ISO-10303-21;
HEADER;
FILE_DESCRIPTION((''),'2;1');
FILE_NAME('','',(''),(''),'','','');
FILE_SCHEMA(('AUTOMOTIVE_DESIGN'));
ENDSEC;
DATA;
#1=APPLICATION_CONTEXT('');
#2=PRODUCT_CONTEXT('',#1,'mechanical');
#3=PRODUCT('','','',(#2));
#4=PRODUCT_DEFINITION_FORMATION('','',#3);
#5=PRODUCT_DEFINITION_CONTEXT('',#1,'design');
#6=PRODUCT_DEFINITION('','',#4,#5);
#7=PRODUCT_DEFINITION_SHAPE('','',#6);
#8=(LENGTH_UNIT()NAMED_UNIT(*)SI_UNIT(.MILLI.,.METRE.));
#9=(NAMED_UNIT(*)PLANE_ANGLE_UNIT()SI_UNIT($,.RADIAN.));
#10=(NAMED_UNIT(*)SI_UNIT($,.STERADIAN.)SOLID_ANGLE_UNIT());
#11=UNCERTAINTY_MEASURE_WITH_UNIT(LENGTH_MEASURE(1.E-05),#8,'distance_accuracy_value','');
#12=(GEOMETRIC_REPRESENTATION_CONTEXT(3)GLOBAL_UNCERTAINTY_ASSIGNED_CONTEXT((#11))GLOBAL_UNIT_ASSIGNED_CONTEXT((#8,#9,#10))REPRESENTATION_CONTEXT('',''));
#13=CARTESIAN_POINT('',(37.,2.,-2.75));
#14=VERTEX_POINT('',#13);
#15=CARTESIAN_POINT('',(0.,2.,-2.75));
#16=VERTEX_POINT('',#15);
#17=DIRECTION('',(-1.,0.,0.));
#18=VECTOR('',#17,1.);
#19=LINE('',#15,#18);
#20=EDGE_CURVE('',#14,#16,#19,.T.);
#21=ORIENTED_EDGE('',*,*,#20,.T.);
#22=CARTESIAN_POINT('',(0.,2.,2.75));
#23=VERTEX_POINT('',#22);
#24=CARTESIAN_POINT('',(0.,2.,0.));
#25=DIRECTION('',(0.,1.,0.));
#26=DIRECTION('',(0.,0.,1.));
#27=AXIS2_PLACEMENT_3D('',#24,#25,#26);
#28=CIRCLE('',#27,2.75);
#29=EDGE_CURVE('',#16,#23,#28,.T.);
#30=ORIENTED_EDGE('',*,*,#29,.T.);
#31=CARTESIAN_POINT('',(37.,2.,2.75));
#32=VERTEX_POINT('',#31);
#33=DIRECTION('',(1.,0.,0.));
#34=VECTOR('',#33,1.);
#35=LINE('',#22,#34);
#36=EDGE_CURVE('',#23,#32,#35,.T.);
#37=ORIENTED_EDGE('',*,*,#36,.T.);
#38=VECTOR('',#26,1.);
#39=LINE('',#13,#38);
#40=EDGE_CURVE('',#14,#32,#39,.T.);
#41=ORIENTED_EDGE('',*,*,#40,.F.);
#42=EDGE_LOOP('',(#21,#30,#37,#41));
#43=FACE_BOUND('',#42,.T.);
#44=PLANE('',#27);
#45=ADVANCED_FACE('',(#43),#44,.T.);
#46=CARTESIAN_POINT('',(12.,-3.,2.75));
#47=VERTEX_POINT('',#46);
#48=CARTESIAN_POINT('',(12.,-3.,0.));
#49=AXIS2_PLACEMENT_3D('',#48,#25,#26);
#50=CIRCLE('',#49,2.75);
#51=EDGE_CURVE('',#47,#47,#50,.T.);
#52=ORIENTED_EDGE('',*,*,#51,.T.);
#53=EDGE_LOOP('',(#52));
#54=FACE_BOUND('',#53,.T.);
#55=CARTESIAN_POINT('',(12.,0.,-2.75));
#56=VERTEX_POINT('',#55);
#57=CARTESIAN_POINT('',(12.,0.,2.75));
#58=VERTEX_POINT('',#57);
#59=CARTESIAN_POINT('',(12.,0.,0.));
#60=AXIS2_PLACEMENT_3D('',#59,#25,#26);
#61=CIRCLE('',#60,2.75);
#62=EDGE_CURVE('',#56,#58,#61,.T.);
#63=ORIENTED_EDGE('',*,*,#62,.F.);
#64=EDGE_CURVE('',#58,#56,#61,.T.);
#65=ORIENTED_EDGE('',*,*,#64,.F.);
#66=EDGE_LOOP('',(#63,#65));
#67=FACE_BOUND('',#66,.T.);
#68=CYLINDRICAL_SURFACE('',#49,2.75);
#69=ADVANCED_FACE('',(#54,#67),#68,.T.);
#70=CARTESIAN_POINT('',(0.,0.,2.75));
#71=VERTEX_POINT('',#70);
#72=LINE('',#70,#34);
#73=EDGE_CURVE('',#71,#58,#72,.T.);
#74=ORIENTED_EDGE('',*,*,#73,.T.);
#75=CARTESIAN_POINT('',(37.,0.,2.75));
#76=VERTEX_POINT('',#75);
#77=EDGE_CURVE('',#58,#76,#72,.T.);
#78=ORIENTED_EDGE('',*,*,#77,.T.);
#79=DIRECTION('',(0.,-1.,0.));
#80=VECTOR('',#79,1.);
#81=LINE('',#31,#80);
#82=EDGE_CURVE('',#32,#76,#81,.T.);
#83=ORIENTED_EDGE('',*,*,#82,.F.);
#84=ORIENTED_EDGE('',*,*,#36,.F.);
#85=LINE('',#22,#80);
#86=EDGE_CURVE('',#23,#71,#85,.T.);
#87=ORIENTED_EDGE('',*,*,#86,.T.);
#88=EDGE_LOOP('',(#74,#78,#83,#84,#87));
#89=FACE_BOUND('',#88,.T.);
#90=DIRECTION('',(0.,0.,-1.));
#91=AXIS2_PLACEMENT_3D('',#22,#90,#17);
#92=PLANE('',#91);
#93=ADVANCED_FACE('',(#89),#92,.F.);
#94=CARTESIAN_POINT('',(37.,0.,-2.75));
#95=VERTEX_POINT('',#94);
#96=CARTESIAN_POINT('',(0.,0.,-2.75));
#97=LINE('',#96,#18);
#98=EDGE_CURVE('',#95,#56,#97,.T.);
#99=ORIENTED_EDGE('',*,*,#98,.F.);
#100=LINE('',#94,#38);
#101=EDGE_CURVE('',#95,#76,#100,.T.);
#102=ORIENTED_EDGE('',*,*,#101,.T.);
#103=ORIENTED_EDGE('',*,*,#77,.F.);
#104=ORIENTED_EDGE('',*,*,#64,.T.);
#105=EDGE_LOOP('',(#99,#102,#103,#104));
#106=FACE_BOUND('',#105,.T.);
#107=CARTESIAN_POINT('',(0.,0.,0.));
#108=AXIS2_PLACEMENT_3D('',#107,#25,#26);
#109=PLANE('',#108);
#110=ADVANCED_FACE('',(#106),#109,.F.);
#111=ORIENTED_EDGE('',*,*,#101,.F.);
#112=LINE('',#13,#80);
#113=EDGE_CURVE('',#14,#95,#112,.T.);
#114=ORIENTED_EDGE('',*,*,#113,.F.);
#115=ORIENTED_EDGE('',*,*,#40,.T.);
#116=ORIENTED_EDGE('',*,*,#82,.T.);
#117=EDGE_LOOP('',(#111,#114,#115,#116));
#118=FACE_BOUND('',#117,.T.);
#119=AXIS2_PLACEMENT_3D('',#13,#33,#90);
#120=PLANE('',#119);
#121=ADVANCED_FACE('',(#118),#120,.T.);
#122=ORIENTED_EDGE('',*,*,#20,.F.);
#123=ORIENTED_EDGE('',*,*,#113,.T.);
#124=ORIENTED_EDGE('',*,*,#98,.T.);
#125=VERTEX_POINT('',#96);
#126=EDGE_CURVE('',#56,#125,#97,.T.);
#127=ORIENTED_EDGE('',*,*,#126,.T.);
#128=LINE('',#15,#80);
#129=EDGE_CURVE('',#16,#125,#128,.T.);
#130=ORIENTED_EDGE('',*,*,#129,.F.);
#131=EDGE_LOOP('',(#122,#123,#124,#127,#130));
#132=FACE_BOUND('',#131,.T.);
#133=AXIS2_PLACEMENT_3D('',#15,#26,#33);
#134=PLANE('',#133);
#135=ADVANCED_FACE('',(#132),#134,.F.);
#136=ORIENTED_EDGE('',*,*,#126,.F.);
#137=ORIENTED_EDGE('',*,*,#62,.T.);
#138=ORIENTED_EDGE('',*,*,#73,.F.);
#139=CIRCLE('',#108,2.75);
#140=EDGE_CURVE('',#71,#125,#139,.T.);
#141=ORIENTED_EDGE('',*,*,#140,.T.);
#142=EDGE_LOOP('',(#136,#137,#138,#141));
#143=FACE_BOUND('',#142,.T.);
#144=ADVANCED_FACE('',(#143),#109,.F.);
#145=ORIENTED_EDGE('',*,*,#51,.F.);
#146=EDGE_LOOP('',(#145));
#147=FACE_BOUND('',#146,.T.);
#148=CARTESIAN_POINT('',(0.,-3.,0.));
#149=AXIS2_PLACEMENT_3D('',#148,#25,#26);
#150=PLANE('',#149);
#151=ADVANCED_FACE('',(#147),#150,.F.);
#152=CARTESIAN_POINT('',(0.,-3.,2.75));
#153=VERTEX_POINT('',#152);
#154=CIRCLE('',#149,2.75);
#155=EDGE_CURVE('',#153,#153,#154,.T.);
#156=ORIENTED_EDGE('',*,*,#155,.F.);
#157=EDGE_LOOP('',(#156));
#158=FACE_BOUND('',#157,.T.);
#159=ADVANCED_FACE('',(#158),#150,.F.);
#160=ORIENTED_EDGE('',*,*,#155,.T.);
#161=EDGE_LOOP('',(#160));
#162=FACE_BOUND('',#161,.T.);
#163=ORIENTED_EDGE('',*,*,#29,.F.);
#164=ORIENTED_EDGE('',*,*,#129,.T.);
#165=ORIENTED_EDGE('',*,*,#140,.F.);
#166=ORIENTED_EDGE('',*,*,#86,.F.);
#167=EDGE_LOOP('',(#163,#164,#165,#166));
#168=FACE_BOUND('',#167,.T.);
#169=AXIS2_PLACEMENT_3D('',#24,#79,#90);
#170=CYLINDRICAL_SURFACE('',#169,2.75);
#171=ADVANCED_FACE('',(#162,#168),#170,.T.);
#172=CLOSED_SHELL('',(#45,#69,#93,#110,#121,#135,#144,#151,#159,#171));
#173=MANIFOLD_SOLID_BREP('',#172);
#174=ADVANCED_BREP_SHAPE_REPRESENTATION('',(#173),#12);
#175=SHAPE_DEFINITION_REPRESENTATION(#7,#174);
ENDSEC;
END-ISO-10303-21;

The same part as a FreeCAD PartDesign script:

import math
import FreeCAD as App
import Part
import Sketcher
from FreeCAD import Vector
Q = App.Units.Quantity

doc = App.newDocument("Part")
params = doc.addObject("Spreadsheet::Sheet", "Params")
for row, (alias, value) in enumerate([
    ("sketch1_width", "37 mm"),
    ("sketch1_radius", "2.75 mm"),
    ("pad1_length", "2 mm"),
    ("sketch2_diameter", "5.5 mm"),
    ("pad2_length", "3 mm"),
], start=1):
    params.set(f"A{row}", alias)
    params.set(f"B{row}", "=" + value)
    params.setAlias(f"B{row}", alias)

body = doc.addObject("PartDesign::Body", "Body")

# Sketch on XZ plane
sketch1 = doc.addObject("Sketcher::SketchObject", "Sketch")
body.addObject(sketch1)
sketch1.AttachmentSupport = (doc.XZ_Plane, [""])
sketch1.MapMode = "FlatFace"
sketch1.addGeometry(Part.LineSegment(Vector(37, -2.8, 0), Vector(0, -2.8, 0)), False)
sketch1.addGeometry(Part.ArcOfCircle(Part.Circle(Vector(0, 0, 0), Vector(0, 0, 1), 2.8), math.radians(90), math.radians(270)), False)
sketch1.addGeometry(Part.LineSegment(Vector(0, 2.8, 0), Vector(37, 2.8, 0)), False)
sketch1.addGeometry(Part.LineSegment(Vector(37, 2.8, 0), Vector(37, -2.8, 0)), False)
sketch1.addConstraint(Sketcher.Constraint("Tangent", 0, 2, 1, 2))
sketch1.addConstraint(Sketcher.Constraint("Tangent", 1, 1, 2, 1))
sketch1.addConstraint(Sketcher.Constraint("Coincident", 2, 2, 3, 1))
sketch1.addConstraint(Sketcher.Constraint("Coincident", 3, 2, 0, 1))
sketch1.addConstraint(Sketcher.Constraint("Horizontal", 0))
sketch1.addConstraint(Sketcher.Constraint("Horizontal", 2))
sketch1.addConstraint(Sketcher.Constraint("Vertical", 3))
sketch1.addConstraint(Sketcher.Constraint("Coincident", 1, 3, -1, 1))
sketch1.addConstraint(Sketcher.Constraint("DistanceX", 0, 2, 0, 1, Q("37 mm")))
sketch1.addConstraint(Sketcher.Constraint("Radius", 1, Q("2.75 mm")))
sketch1.setExpression("Constraints[8]", "Params.sketch1_width")
sketch1.setExpression("Constraints[9]", "Params.sketch1_radius")
pad1 = doc.addObject("PartDesign::Pad", "Pad")
body.addObject(pad1)
pad1.Profile = sketch1
pad1.setExpression("Length", "Params.pad1_length")
pad1.Reversed = True

# Sketch on XZ plane
sketch2 = doc.addObject("Sketcher::SketchObject", "Sketch001")
body.addObject(sketch2)
sketch2.AttachmentSupport = (doc.XZ_Plane, [""])
sketch2.MapMode = "FlatFace"
sketch2.AttachmentOffset = App.Placement(Vector(0, 0, 3), App.Rotation())
sketch2.addGeometry(Part.Circle(Vector(12, 0, 0), Vector(0, 0, 1), 2.8), False)
sketch2.addGeometry(Part.Circle(Vector(0, 0, 0), Vector(0, 0, 1), 2.8), False)
sketch2.addConstraint(Sketcher.Constraint("Coincident", 1, 3, -1, 1))
sketch2.addConstraint(Sketcher.Constraint("Equal", 0, 1))
sketch2.addConstraint(Sketcher.Constraint("PointOnObject", 0, 3, -1))
sketch2.addConstraint(Sketcher.Constraint("Diameter", 0, Q("5.5 mm")))
sketch2.addConstraint(Sketcher.Constraint("DistanceX", -1, 1, 0, 3, Q("12 mm")))
sketch2.setExpression("Constraints[3]", "Params.sketch2_diameter")
pad2 = doc.addObject("PartDesign::Pad", "Pad001")
body.addObject(pad2)
pad2.Profile = sketch2
pad2.setExpression("Length", "Params.pad2_length")
pad2.Reversed = True

doc.recompute()
